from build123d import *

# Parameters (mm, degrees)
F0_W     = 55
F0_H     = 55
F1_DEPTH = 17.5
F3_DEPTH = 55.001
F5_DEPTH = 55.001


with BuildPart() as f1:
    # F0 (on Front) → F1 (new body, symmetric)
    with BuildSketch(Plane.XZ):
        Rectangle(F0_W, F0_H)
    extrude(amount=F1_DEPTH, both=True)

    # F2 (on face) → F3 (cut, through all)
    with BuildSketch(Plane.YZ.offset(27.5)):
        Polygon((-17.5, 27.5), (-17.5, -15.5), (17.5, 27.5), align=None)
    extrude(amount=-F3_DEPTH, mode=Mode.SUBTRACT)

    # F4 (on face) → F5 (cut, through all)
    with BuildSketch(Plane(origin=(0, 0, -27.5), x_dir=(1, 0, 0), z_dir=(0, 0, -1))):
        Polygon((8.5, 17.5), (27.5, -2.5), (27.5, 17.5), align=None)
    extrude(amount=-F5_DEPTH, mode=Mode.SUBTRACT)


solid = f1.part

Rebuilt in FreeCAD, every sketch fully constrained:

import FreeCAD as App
import Part
import Sketcher

V = App.Vector
Q = App.Units.Quantity

doc = App.newDocument("Part")
params = doc.addObject("Spreadsheet::Sheet", "Params")
for row, (alias, value) in enumerate([
    ("sketch1_width", "55 mm"),
    ("pad1_length", "35 mm"),
    ("sketch2_width", "35 mm"),
    ("sketch2_height", "43 mm"),
    ("sketch3_width", "19 mm"),
    ("sketch3_height", "20 mm"),
], start=1):
    params.set(f"A{row}", alias)
    params.set(f"B{row}", "=" + value)
    params.setAlias(f"B{row}", alias)

body = doc.addObject("PartDesign::Body", "Body")

# Sketch on XZ plane
sketch1 = doc.addObject("Sketcher::SketchObject", "Sketch")
body.addObject(sketch1)
sketch1.AttachmentSupport = (doc.XZ_Plane, [""])
sketch1.MapMode = "FlatFace"
sketch1.addGeometry([
    Part.LineSegment(V(-28, 28, 0), V(-28, -28, 0)),
    Part.LineSegment(V(-28, -28, 0), V(28, -28, 0)),
    Part.LineSegment(V(28, -28, 0), V(28, 28, 0)),
    Part.LineSegment(V(28, 28, 0), V(-28, 28, 0)),
], False)
sketch1.addConstraint([
    Sketcher.Constraint("Coincident", 0, 2, 1, 1),
    Sketcher.Constraint("Coincident", 1, 2, 2, 1),
    Sketcher.Constraint("Coincident", 2, 2, 3, 1),
    Sketcher.Constraint("Coincident", 3, 2, 0, 1),
    Sketcher.Constraint("Vertical", 0),
    Sketcher.Constraint("Horizontal", 1),
    Sketcher.Constraint("Vertical", 2),
    Sketcher.Constraint("Horizontal", 3),
    Sketcher.Constraint("Symmetric", 0, 2, 2, 2, -1, 1),
    Sketcher.Constraint("Equal", 3, 0),
    Sketcher.Constraint("DistanceX", 1, 1, 1, 2, Q("55 mm")),
])
sketch1.setExpression("Constraints[10]", "Params.sketch1_width")
pad1 = doc.addObject("PartDesign::Pad", "Pad")
body.addObject(pad1)
pad1.Profile = sketch1
pad1.setExpression("Length", "Params.pad1_length")
pad1.Midplane = True

# Sketch on YZ plane
sketch2 = doc.addObject("Sketcher::SketchObject", "Sketch001")
body.addObject(sketch2)
sketch2.AttachmentSupport = (doc.YZ_Plane, [""])
sketch2.MapMode = "FlatFace"
sketch2.AttachmentOffset = App.Placement(V(0, 0, 27.5), App.Rotation())
sketch2.addGeometry([
    Part.LineSegment(V(-18, 28, 0), V(-18, -16, 0)),
    Part.LineSegment(V(-18, -16, 0), V(18, 28, 0)),
    Part.LineSegment(V(18, 28, 0), V(-18, 28, 0)),
], False)
sketch2.addConstraint([
    Sketcher.Constraint("Coincident", 0, 2, 1, 1),
    Sketcher.Constraint("Coincident", 1, 2, 2, 1),
    Sketcher.Constraint("Coincident", 2, 2, 0, 1),
    Sketcher.Constraint("Vertical", 0),
    Sketcher.Constraint("Horizontal", 2),
    Sketcher.Constraint("DistanceX", 2, 2, 2, 1, Q("35 mm")),
    Sketcher.Constraint("DistanceY", 0, 2, 0, 1, Q("43 mm")),
    Sketcher.Constraint("DistanceX", 0, 2, -1, 1, Q("17.5 mm")),
    Sketcher.Constraint("DistanceY", 0, 2, -1, 1, Q("15.5 mm")),
])
sketch2.setExpression("Constraints[5]", "Params.sketch2_width")
sketch2.setExpression("Constraints[6]", "Params.sketch2_height")
pocket1 = doc.addObject("PartDesign::Pocket", "Pocket")
body.addObject(pocket1)
pocket1.Profile = sketch2
pocket1.Type = "ThroughAll"

# Sketch on XY plane
sketch3 = doc.addObject("Sketcher::SketchObject", "Sketch002")
body.addObject(sketch3)
sketch3.AttachmentSupport = (doc.XY_Plane, [""])
sketch3.MapMode = "FlatFace"
sketch3.AttachmentOffset = App.Placement(V(0, 0, -27.5), App.Rotation())
sketch3.addGeometry([
    Part.LineSegment(V(8, -18, 0), V(28, 2, 0)),
    Part.LineSegment(V(28, 2, 0), V(28, -18, 0)),
    Part.LineSegment(V(28, -18, 0), V(8, -18, 0)),
], False)
sketch3.addConstraint([
    Sketcher.Constraint("Coincident", 0, 2, 1, 1),
    Sketcher.Constraint("Coincident", 1, 2, 2, 1),
    Sketcher.Constraint("Coincident", 2, 2, 0, 1),
    Sketcher.Constraint("Vertical", 1),
    Sketcher.Constraint("Horizontal", 2),
    Sketcher.Constraint("DistanceX", 2, 2, 2, 1, Q("19 mm")),
    Sketcher.Constraint("DistanceY", 1, 2, 1, 1, Q("20 mm")),
    Sketcher.Constraint("DistanceX", -1, 1, 0, 2, Q("27.5 mm")),
    Sketcher.Constraint("DistanceY", -1, 1, 0, 2, Q("2.5 mm")),
])
sketch3.setExpression("Constraints[5]", "Params.sketch3_width")
sketch3.setExpression("Constraints[6]", "Params.sketch3_height")
pocket2 = doc.addObject("PartDesign::Pocket", "Pocket001")
body.addObject(pocket2)
pocket2.Profile = sketch3
pocket2.Type = "ThroughAll"
pocket2.Reversed = True

doc.recompute()
